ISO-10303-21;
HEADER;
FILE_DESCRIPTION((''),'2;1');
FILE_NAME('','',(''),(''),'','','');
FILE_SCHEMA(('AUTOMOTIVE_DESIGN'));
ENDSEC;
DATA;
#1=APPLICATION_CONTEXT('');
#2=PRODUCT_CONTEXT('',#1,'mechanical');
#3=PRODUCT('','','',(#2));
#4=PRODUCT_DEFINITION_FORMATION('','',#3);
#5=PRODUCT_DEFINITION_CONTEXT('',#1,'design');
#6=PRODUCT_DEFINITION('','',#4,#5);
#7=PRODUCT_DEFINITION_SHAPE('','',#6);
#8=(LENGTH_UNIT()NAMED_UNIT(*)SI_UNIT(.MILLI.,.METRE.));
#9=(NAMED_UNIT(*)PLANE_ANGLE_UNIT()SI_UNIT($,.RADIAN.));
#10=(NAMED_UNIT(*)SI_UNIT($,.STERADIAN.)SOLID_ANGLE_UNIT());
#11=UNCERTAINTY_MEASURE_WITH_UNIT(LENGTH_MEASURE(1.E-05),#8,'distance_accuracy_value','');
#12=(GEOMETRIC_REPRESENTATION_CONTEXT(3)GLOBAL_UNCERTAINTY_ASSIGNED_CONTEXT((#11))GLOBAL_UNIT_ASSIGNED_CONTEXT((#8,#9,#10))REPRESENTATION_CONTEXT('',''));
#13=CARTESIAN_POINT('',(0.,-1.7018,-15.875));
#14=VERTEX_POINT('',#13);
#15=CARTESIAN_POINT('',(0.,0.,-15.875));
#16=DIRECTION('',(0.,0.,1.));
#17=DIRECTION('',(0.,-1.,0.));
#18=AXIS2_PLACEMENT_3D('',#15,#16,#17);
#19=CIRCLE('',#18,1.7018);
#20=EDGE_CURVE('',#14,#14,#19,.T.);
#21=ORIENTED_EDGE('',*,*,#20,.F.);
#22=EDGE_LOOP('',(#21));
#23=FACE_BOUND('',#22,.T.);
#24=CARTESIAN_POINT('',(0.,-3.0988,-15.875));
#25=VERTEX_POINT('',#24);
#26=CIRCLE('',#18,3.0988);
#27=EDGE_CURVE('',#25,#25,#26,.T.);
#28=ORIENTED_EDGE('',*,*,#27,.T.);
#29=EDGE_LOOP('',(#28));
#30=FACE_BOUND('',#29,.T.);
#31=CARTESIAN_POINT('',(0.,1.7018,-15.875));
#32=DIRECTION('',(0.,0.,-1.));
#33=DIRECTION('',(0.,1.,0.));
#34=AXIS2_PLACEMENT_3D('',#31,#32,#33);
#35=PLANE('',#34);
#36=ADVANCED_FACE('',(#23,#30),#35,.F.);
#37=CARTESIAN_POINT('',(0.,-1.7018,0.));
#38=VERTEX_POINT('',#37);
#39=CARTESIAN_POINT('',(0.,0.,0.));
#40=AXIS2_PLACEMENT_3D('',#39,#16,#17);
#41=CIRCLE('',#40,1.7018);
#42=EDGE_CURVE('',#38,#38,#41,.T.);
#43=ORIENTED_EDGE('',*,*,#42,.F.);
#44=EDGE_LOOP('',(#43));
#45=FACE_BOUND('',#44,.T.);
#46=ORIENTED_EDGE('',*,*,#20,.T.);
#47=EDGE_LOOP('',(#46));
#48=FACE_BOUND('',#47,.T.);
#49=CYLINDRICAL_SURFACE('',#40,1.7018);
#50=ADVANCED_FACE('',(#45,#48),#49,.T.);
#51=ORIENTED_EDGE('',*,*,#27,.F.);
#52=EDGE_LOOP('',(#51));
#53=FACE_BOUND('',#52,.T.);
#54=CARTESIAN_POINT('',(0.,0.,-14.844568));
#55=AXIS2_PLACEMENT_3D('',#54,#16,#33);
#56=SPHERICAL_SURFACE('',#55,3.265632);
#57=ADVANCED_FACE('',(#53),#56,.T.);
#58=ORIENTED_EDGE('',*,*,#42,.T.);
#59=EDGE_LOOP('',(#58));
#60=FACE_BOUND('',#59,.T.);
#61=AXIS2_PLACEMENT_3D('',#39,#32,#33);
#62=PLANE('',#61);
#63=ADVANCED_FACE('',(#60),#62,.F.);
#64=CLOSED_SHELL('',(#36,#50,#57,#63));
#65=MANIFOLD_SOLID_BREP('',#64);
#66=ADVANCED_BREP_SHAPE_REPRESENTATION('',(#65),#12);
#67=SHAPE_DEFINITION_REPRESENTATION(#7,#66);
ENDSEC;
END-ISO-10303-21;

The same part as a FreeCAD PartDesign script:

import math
import FreeCAD as App
import Part
import Sketcher

V = App.Vector
Q = App.Units.Quantity

doc = App.newDocument("Part")
body = doc.addObject("PartDesign::Body", "Body")

sketch1 = doc.addObject("Sketcher::SketchObject", "Sketch")
body.addObject(sketch1)
sketch1.AttachmentSupport = (doc.YZ_Plane, [""])
sketch1.MapMode = "FlatFace"
sketch1.addGeometry([
    Part.LineSegment(V(1.7, 0, 0), V(0, 0, 0)),
    Part.LineSegment(V(0, 0, 0), V(0, -18.1, 0)),
    Part.ArcOfCircle(Part.Circle(V(0, -14.8, 0), V(0, 0, 1), 3.3), math.radians(-90), math.radians(-18)),
    Part.LineSegment(V(3.1, -15.9, 0), V(1.7, -15.9, 0)),
    Part.LineSegment(V(1.7, -15.9, 0), V(1.7, 0, 0)),
], False)
sketch1.addConstraint([
    Sketcher.Constraint("Coincident", 0, 2, 1, 1),
    Sketcher.Constraint("Coincident", 1, 2, 2, 1),
    Sketcher.Constraint("Coincident", 2, 2, 3, 1),
    Sketcher.Constraint("Coincident", 3, 2, 4, 1),
    Sketcher.Constraint("Coincident", 4, 2, 0, 1),
    Sketcher.Constraint("Horizontal", 0),
    Sketcher.Constraint("Vertical", 1),
    Sketcher.Constraint("Horizontal", 3),
    Sketcher.Constraint("Vertical", 4),
    Sketcher.Constraint("Coincident", 0, 2, -1, 1),
    Sketcher.Constraint("PointOnObject", 2, 3, -2),
    Sketcher.Constraint("DistanceX", 0, 2, 0, 1, Q("0.067 in")),
    Sketcher.Constraint("DistanceX", 3, 2, 3, 1, Q("0.055 in")),
    Sketcher.Constraint("DistanceY", 1, 2, 1, 1, Q("0.713 in")),
    Sketcher.Constraint("DistanceY", 4, 1, 4, 2, Q("0.625 in")),
])
revolution = doc.addObject("PartDesign::Revolution", "Revolution")
body.addObject(revolution)
revolution.Profile = sketch1
revolution.ReferenceAxis = (sketch1, ["V_Axis"])
revolution.Angle = 360

doc.recompute()
